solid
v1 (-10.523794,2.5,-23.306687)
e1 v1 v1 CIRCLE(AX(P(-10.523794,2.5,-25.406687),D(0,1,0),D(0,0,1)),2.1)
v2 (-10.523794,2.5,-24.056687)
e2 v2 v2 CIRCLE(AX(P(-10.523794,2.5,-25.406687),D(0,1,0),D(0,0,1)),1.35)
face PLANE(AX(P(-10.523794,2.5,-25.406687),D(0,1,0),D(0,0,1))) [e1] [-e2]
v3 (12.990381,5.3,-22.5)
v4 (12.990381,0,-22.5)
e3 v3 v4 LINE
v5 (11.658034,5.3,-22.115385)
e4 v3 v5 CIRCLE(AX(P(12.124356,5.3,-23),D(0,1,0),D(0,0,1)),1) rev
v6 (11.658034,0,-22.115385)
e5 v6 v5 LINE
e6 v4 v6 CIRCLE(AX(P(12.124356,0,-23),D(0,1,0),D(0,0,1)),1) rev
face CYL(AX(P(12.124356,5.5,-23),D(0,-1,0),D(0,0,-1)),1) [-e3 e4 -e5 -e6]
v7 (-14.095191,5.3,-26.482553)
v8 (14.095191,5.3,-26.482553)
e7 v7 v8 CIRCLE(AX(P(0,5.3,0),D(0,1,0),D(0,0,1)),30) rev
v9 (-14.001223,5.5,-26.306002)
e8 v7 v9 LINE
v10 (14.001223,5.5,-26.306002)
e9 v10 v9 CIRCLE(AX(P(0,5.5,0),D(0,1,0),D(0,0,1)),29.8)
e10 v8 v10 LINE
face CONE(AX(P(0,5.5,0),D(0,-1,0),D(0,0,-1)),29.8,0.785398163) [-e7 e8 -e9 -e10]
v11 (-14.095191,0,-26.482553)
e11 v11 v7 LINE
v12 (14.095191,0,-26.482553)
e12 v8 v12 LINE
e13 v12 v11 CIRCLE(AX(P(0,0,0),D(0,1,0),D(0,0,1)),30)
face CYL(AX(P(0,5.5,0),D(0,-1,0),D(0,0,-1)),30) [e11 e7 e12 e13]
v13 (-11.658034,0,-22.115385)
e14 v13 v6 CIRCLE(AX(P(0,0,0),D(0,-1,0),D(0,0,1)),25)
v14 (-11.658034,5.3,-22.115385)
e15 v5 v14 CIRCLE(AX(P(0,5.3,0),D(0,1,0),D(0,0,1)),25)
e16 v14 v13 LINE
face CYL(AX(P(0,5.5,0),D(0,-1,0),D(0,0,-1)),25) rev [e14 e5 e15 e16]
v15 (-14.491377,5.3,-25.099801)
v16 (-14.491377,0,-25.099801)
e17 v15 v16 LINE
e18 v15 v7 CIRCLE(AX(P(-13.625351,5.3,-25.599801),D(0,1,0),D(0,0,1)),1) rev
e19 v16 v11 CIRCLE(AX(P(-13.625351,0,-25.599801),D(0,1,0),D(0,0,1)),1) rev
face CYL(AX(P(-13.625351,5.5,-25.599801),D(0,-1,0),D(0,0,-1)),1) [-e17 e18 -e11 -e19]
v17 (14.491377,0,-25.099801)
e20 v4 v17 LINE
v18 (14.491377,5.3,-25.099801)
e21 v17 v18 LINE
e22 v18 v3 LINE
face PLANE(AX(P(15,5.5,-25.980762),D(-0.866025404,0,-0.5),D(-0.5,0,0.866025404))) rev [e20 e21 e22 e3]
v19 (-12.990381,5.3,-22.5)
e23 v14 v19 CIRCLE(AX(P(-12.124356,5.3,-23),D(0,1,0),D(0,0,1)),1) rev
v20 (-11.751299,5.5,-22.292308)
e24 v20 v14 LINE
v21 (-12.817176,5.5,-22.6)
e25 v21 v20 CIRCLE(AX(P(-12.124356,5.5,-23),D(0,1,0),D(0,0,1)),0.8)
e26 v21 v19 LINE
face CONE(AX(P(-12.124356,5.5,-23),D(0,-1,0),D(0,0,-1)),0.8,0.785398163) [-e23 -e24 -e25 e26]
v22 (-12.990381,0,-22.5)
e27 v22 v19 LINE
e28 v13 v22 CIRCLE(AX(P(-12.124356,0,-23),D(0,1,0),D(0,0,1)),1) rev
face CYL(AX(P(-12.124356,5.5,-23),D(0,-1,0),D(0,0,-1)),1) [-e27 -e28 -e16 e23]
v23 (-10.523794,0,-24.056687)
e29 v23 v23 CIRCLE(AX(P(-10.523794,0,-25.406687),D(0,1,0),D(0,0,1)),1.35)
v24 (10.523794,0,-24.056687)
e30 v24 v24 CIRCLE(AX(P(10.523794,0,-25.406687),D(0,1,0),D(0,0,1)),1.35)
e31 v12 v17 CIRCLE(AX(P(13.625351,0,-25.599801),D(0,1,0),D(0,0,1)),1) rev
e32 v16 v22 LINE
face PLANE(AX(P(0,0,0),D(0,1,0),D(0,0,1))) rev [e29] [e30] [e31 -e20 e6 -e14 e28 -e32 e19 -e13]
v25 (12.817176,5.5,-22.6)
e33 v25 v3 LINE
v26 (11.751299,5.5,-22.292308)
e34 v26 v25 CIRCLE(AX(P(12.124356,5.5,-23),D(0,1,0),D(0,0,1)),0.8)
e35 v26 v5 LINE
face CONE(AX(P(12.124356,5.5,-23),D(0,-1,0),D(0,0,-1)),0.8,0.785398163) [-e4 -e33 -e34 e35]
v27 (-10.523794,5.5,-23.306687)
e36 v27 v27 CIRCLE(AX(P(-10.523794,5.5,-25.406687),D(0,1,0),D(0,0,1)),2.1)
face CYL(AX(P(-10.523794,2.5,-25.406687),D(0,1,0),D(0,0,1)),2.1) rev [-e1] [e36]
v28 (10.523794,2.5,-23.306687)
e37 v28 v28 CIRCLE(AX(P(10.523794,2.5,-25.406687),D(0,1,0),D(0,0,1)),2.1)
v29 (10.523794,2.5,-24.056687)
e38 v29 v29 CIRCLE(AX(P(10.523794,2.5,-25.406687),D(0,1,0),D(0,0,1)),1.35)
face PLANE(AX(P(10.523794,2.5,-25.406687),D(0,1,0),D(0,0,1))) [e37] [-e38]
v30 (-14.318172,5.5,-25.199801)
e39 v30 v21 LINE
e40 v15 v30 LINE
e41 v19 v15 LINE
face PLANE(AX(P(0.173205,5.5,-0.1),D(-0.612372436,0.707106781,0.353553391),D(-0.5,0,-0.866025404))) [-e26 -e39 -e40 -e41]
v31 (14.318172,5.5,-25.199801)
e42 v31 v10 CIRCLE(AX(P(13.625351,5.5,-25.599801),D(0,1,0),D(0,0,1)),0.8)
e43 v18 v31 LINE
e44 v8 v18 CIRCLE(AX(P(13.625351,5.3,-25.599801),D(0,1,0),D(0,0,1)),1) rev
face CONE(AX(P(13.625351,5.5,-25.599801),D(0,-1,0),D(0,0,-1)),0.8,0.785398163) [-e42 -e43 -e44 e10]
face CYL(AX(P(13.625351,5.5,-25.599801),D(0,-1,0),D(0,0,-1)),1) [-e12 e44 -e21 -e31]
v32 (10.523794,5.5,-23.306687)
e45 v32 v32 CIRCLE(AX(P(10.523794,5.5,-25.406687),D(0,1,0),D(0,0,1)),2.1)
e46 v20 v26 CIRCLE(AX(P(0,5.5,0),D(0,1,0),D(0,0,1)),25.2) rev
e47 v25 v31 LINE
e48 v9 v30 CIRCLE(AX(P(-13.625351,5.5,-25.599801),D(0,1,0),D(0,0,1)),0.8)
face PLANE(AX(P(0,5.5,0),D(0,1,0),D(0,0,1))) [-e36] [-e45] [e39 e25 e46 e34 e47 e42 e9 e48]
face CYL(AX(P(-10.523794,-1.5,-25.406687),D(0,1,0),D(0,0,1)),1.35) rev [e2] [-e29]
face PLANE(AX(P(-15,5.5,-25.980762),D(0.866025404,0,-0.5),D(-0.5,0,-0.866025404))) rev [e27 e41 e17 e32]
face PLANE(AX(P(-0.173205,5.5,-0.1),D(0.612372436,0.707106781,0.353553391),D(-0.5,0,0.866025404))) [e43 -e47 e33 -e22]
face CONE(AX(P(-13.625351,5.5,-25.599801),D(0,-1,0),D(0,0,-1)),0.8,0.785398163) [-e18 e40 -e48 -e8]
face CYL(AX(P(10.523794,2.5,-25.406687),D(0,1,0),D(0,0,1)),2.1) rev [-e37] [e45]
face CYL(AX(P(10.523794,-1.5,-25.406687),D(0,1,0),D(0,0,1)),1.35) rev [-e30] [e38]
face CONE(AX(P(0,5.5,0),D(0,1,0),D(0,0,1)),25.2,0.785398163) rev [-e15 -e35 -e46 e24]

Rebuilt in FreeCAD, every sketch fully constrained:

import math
import FreeCAD as App
import Part
import Sketcher

V = App.Vector
Q = App.Units.Quantity


def edges_at(feature, points):
    """Names of the edges that pass closest to the given points."""
    edges = feature.Shape.Edges
    near = lambda p: min(range(len(edges)), key=lambda i: edges[i].distToShape(Part.Vertex(*p))[0])
    return sorted({f"Edge{near(p) + 1}" for p in points})

doc = App.newDocument("Part")
body = doc.addObject("PartDesign::Body", "Body")

# Sketch on XZ plane
sketch1 = body.newObject("Sketcher::SketchObject", "Sketch")
sketch1.AttachmentSupport = (doc.getObject("XZ_Plane"), [""])
sketch1.MapMode = "FlatFace"
sketch1.addGeometry([
    Part.LineSegment(V(-15, -26, 0), V(-12, -22, 0)),
    Part.ArcOfCircle(Part.Circle(V(0, 0, 0), V(0, 0, 1), 25), math.radians(-120), math.radians(-60)),
    Part.LineSegment(V(12, -22, 0), V(15, -26, 0)),
    Part.ArcOfCircle(Part.Circle(V(0, 0, 0), V(0, 0, 1), 30), math.radians(-120), math.radians(-60)),
], False)
sketch1.addConstraint([
    Sketcher.Constraint("Coincident", 0, 2, 1, 1),
    Sketcher.Constraint("Coincident", 1, 2, 2, 1),
    Sketcher.Constraint("Coincident", 2, 2, 3, 2),
    Sketcher.Constraint("Coincident", 3, 1, 0, 1),
    Sketcher.Constraint("Coincident", 1, 3, -1, 1),
    Sketcher.Constraint("Coincident", 3, 3, -1, 1),
    Sketcher.Constraint("Horizontal", 0, 2, 1, 2),
    Sketcher.Constraint("Horizontal", 2, 2, 3, 1),
    Sketcher.Constraint("Radius", 1, Q("25 mm")),
    Sketcher.Constraint("Radius", 3, Q("30 mm")),
    Sketcher.Constraint("Angle", 0, Q("60 deg")),
    Sketcher.Constraint("DistanceX", -1, 1, 2, 2, Q("15 mm")),
])
pad1 = body.newObject("PartDesign::Pad", "Pad")
pad1.Profile = sketch1
pad1.Length = 5.5
pad1.Reversed = True

# Sketch on XZ plane
sketch2 = body.newObject("Sketcher::SketchObject", "Sketch001")
sketch2.AttachmentSupport = (doc.getObject("XZ_Plane"), [""])
sketch2.MapMode = "FlatFace"
sketch2.AttachmentOffset = App.Placement(V(0, 0, -5.5), App.Rotation())
sketch2.addGeometry([
    Part.Circle(V(-10.5, -25.4, 0), V(0, 0, 1), 2.1),
    Part.Circle(V(10.5, -25.4, 0), V(0, 0, 1), 2.1),
], False)
sketch2.addConstraint([
    Sketcher.Constraint("Equal", 0, 1),
    Sketcher.Constraint("Symmetric", 0, 3, 1, 3, -2),
    Sketcher.Constraint("Diameter", 0, Q("4.2 mm")),
    Sketcher.Constraint("DistanceX", 0, 3, 1, 3, Q("21.047589 mm")),
    Sketcher.Constraint("DistanceY", 0, 3, -1, 1, Q("25.406687 mm")),
])
pocket1 = body.newObject("PartDesign::Pocket", "Pocket")
pocket1.Profile = sketch2
pocket1.Length = 3
pocket1.Reversed = True

# Sketch on XZ plane
sketch3 = body.newObject("Sketcher::SketchObject", "Sketch002")
sketch3.AttachmentSupport = (doc.getObject("XZ_Plane"), [""])
sketch3.MapMode = "FlatFace"
sketch3.AttachmentOffset = App.Placement(V(0, 0, -5.5), App.Rotation())
sketch3.addGeometry([
    Part.Circle(V(-10.5, -25.4, 0), V(0, 0, 1), 1.4),
    Part.Circle(V(10.5, -25.4, 0), V(0, 0, 1), 1.4),
], False)
sketch3.addConstraint([
    Sketcher.Constraint("Equal", 0, 1),
    Sketcher.Constraint("Symmetric", 0, 3, 1, 3, -2),
    Sketcher.Constraint("Diameter", 0, Q("2.7 mm")),
    Sketcher.Constraint("DistanceX", 0, 3, 1, 3, Q("21.047589 mm")),
    Sketcher.Constraint("DistanceY", 0, 3, -1, 1, Q("25.406687 mm")),
])
pocket2 = body.newObject("PartDesign::Pocket", "Pocket001")
pocket2.Profile = sketch3
pocket2.Length = 7
pocket2.Reversed = True
doc.recompute()

fillet = body.newObject("PartDesign::Fillet", "Fillet")
fillet.Base = (pocket2, edges_at(pocket2, [
    (15, 2.75, -25.981),
    (12.5, 2.75, -21.651),
    (-12.5, 2.75, -21.651),
    (-15, 2.75, -25.981),
]))
fillet.Radius = 1
doc.recompute()

chamfer = body.newObject("PartDesign::Chamfer", "Chamfer")
chamfer.Base = (fillet, edges_at(fillet, [
    (0, 5.5, -30),
    (13.741, 5.5, -23.8),
    (-13.741, 5.5, -23.8),
    (0, 5.5, -25),
    (-12.402, 5.5, -22.039),
    (-14.587, 5.5, -25.875),
    (12.402, 5.5, -22.039),
    (14.587, 5.5, -25.875),
]))
chamfer.Size = 0.2

doc.recompute()
